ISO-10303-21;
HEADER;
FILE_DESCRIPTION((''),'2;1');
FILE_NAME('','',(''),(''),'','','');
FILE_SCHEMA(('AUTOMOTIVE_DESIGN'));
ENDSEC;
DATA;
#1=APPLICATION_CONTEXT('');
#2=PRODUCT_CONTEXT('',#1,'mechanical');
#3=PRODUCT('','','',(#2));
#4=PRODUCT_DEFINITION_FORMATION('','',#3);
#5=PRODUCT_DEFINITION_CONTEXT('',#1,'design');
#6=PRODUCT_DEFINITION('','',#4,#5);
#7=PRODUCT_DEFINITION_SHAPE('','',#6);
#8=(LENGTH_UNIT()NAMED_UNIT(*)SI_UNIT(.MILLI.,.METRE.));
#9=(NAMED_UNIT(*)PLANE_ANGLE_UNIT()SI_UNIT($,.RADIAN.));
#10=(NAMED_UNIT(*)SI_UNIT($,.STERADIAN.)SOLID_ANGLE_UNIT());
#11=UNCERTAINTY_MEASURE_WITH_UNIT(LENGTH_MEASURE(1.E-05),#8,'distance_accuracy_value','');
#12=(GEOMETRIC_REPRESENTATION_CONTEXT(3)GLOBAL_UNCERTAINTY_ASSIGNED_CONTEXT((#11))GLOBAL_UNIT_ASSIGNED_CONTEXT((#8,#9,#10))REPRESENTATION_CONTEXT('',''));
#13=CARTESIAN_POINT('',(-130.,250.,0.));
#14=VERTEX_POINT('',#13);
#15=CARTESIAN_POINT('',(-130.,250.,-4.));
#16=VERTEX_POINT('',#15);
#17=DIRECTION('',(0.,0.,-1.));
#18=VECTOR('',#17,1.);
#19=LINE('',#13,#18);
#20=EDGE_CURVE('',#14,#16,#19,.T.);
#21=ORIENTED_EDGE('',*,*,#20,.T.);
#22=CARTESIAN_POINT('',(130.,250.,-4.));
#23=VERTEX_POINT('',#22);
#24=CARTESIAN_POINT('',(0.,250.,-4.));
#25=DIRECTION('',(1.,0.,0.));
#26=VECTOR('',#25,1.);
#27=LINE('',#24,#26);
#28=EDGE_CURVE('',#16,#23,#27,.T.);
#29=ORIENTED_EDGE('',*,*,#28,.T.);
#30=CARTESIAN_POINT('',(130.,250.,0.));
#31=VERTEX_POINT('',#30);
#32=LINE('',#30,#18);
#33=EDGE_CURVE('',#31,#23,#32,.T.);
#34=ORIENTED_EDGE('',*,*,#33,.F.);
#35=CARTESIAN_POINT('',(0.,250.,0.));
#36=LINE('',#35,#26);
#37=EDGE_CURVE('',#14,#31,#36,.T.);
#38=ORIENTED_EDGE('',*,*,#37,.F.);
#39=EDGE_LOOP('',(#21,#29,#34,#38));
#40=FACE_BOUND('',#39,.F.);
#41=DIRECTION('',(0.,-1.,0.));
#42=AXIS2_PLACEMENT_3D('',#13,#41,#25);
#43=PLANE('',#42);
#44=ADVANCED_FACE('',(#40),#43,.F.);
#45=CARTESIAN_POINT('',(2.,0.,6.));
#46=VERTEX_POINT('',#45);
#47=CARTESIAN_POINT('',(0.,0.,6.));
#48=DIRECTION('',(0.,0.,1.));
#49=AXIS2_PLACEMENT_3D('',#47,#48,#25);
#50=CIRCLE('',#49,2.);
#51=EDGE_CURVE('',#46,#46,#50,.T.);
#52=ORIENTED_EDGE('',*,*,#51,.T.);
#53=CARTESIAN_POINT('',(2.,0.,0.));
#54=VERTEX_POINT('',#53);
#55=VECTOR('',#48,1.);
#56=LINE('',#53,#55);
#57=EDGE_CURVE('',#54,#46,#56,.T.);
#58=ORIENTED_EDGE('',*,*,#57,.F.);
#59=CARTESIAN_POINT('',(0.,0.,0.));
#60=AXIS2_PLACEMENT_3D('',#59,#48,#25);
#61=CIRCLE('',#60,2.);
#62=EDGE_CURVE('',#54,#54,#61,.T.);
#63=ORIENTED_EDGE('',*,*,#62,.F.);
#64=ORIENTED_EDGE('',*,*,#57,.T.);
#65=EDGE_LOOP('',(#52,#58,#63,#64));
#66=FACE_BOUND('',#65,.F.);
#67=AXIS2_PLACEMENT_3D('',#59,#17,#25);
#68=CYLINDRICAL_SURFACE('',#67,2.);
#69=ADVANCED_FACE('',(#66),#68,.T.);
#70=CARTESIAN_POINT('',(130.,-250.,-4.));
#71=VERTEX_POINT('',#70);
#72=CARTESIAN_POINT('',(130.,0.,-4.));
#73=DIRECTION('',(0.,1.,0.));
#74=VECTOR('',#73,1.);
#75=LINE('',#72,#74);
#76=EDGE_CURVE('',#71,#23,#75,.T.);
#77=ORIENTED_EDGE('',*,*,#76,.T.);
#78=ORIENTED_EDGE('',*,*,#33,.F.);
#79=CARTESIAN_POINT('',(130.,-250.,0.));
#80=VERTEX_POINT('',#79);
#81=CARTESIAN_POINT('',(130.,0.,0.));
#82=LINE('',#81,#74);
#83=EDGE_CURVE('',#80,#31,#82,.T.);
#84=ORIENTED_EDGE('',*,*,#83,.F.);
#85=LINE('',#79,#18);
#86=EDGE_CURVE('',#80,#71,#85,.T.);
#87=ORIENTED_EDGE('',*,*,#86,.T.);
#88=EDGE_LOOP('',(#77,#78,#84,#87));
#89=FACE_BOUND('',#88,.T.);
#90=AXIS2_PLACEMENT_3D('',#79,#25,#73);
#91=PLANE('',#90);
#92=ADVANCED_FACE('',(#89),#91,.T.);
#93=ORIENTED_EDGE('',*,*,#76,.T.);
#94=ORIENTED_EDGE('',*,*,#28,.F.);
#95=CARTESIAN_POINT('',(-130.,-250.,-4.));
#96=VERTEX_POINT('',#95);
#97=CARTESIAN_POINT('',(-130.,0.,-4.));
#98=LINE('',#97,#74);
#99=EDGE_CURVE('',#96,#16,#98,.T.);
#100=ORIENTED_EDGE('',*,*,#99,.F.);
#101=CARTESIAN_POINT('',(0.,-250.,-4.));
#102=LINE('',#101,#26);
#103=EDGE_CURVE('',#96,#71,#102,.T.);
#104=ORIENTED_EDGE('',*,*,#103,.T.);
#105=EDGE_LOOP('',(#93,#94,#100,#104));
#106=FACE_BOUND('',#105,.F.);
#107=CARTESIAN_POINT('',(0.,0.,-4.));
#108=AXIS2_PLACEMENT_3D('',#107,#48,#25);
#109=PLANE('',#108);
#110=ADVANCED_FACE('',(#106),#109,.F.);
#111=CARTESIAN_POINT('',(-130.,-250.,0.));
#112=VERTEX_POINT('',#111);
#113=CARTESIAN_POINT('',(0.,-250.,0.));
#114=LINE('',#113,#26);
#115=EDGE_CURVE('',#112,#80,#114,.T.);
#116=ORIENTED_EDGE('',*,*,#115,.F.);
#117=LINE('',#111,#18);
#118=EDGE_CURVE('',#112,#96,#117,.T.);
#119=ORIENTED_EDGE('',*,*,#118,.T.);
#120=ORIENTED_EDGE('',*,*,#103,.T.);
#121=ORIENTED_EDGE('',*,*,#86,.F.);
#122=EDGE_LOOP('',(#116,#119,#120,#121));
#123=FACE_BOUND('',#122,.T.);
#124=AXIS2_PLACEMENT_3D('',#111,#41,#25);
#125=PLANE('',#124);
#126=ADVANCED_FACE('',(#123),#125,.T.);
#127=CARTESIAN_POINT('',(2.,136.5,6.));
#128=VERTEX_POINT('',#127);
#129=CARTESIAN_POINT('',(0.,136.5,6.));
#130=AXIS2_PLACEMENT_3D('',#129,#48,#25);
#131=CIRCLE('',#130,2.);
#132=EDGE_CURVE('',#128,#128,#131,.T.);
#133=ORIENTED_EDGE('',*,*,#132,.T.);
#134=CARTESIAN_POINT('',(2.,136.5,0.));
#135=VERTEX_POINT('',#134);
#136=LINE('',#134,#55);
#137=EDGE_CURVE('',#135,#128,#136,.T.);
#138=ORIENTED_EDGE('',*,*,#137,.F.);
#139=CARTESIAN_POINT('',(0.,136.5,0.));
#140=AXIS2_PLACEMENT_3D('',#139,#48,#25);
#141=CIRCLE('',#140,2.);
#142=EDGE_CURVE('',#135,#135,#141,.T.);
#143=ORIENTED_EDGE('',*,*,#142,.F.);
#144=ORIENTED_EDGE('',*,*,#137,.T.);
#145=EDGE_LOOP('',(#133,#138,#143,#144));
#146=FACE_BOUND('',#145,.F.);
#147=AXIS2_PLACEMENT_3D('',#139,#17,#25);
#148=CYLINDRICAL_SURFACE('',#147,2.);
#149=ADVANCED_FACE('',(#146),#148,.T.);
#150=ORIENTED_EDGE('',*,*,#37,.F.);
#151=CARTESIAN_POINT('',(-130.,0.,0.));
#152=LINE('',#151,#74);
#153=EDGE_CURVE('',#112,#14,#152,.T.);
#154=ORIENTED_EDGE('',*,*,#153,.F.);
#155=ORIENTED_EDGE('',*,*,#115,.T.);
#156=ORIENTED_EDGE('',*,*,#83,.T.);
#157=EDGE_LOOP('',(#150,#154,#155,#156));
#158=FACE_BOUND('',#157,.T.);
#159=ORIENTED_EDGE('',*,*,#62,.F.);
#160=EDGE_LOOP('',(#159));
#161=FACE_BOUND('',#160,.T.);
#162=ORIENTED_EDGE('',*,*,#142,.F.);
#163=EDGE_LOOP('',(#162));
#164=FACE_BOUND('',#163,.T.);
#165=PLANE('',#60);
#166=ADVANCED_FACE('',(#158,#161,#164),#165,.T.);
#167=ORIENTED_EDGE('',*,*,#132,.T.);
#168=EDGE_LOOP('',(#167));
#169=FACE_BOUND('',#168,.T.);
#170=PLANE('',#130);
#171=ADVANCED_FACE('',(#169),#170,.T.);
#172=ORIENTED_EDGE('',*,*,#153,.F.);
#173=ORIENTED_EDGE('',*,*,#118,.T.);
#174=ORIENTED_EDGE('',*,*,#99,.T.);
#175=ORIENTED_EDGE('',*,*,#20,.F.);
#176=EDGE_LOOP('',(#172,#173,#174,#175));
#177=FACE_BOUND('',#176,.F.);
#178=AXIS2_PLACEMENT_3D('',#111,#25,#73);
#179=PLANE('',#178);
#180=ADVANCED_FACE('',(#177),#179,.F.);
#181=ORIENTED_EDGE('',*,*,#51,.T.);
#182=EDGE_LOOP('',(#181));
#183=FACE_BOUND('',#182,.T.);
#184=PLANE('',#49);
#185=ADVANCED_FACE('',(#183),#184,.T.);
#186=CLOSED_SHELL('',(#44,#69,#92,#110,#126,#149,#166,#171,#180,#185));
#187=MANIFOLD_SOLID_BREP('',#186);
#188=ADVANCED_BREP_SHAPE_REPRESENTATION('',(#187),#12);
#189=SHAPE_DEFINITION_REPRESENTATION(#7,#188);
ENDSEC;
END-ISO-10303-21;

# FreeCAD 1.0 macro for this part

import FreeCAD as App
import Part
import Sketcher


def add_polygon(sketch, points):
    """Adds a closed chain of lines whose ends are joined by coincident constraints."""
    first, n = sketch.GeometryCount, len(points)
    for a, b in zip(points, points[1:] + points[:1]):
        sketch.addGeometry(Part.LineSegment(App.Vector(*a, 0), App.Vector(*b, 0)), False)
    for i in range(n):
        sketch.addConstraint(Sketcher.Constraint("Coincident", first + i, 2, first + (i + 1) % n, 1))

doc = App.newDocument("Part")
params = doc.addObject("Spreadsheet::Sheet", "Params")
for row, (alias, value) in enumerate([
    ("sketch1_width", "260 mm"),
    ("sketch1_height", "500 mm"),
    ("pad1_length", "4 mm"),
    ("sketch2_diameter", "4 mm"),
    ("pad2_length", "6 mm"),
], start=1):
    params.set(f"A{row}", alias)
    params.set(f"B{row}", "=" + value)
    params.setAlias(f"B{row}", alias)

body = doc.addObject("PartDesign::Body", "Body")

# Sketch on XY plane
sketch1 = body.newObject("Sketcher::SketchObject", "Sketch")
sketch1.AttachmentSupport = (doc.getObject("XY_Plane"), [""])
sketch1.MapMode = "FlatFace"
add_polygon(sketch1, [(-130, 250), (-130, -250), (130, -250), (130, 250)])  # lines 0-3
sketch1.addConstraint(Sketcher.Constraint("Vertical", 0))
sketch1.addConstraint(Sketcher.Constraint("Horizontal", 1))
sketch1.addConstraint(Sketcher.Constraint("Vertical", 2))
sketch1.addConstraint(Sketcher.Constraint("Horizontal", 3))
sketch1.addConstraint(Sketcher.Constraint("Symmetric", 0, 2, 2, 2, -1, 1))
sketch1.addConstraint(Sketcher.Constraint("DistanceX", 1, 1, 1, 2, 260.0))
sketch1.addConstraint(Sketcher.Constraint("DistanceY", 0, 2, 0, 1, 500.0))
sketch1.setExpression("Constraints[9]", "Params.sketch1_width")
sketch1.setExpression("Constraints[10]", "Params.sketch1_height")
pad1 = body.newObject("PartDesign::Pad", "Pad")
pad1.Profile = sketch1
pad1.setExpression("Length", "Params.pad1_length")
pad1.Reversed = True

# Sketch on XY plane
sketch2 = body.newObject("Sketcher::SketchObject", "Sketch001")
sketch2.AttachmentSupport = (doc.getObject("XY_Plane"), [""])
sketch2.MapMode = "FlatFace"
sketch2.addGeometry(Part.Circle(App.Vector(0, 0, 0), App.Vector(0, 0, 1), 2), False)
sketch2.addGeometry(Part.Circle(App.Vector(0, 136.5, 0), App.Vector(0, 0, 1), 2), False)
sketch2.addConstraint(Sketcher.Constraint("Coincident", 0, 3, -1, 1))
sketch2.addConstraint(Sketcher.Constraint("Equal", 0, 1))
sketch2.addConstraint(Sketcher.Constraint("PointOnObject", 1, 3, -2))
sketch2.addConstraint(Sketcher.Constraint("Diameter", 0, 4.0))
sketch2.addConstraint(Sketcher.Constraint("DistanceY", -1, 1, 1, 3, 136.5))
sketch2.setExpression("Constraints[3]", "Params.sketch2_diameter")
pad2 = body.newObject("PartDesign::Pad", "Pad001")
pad2.Profile = sketch2
pad2.setExpression("Length", "Params.pad2_length")

doc.recompute()
